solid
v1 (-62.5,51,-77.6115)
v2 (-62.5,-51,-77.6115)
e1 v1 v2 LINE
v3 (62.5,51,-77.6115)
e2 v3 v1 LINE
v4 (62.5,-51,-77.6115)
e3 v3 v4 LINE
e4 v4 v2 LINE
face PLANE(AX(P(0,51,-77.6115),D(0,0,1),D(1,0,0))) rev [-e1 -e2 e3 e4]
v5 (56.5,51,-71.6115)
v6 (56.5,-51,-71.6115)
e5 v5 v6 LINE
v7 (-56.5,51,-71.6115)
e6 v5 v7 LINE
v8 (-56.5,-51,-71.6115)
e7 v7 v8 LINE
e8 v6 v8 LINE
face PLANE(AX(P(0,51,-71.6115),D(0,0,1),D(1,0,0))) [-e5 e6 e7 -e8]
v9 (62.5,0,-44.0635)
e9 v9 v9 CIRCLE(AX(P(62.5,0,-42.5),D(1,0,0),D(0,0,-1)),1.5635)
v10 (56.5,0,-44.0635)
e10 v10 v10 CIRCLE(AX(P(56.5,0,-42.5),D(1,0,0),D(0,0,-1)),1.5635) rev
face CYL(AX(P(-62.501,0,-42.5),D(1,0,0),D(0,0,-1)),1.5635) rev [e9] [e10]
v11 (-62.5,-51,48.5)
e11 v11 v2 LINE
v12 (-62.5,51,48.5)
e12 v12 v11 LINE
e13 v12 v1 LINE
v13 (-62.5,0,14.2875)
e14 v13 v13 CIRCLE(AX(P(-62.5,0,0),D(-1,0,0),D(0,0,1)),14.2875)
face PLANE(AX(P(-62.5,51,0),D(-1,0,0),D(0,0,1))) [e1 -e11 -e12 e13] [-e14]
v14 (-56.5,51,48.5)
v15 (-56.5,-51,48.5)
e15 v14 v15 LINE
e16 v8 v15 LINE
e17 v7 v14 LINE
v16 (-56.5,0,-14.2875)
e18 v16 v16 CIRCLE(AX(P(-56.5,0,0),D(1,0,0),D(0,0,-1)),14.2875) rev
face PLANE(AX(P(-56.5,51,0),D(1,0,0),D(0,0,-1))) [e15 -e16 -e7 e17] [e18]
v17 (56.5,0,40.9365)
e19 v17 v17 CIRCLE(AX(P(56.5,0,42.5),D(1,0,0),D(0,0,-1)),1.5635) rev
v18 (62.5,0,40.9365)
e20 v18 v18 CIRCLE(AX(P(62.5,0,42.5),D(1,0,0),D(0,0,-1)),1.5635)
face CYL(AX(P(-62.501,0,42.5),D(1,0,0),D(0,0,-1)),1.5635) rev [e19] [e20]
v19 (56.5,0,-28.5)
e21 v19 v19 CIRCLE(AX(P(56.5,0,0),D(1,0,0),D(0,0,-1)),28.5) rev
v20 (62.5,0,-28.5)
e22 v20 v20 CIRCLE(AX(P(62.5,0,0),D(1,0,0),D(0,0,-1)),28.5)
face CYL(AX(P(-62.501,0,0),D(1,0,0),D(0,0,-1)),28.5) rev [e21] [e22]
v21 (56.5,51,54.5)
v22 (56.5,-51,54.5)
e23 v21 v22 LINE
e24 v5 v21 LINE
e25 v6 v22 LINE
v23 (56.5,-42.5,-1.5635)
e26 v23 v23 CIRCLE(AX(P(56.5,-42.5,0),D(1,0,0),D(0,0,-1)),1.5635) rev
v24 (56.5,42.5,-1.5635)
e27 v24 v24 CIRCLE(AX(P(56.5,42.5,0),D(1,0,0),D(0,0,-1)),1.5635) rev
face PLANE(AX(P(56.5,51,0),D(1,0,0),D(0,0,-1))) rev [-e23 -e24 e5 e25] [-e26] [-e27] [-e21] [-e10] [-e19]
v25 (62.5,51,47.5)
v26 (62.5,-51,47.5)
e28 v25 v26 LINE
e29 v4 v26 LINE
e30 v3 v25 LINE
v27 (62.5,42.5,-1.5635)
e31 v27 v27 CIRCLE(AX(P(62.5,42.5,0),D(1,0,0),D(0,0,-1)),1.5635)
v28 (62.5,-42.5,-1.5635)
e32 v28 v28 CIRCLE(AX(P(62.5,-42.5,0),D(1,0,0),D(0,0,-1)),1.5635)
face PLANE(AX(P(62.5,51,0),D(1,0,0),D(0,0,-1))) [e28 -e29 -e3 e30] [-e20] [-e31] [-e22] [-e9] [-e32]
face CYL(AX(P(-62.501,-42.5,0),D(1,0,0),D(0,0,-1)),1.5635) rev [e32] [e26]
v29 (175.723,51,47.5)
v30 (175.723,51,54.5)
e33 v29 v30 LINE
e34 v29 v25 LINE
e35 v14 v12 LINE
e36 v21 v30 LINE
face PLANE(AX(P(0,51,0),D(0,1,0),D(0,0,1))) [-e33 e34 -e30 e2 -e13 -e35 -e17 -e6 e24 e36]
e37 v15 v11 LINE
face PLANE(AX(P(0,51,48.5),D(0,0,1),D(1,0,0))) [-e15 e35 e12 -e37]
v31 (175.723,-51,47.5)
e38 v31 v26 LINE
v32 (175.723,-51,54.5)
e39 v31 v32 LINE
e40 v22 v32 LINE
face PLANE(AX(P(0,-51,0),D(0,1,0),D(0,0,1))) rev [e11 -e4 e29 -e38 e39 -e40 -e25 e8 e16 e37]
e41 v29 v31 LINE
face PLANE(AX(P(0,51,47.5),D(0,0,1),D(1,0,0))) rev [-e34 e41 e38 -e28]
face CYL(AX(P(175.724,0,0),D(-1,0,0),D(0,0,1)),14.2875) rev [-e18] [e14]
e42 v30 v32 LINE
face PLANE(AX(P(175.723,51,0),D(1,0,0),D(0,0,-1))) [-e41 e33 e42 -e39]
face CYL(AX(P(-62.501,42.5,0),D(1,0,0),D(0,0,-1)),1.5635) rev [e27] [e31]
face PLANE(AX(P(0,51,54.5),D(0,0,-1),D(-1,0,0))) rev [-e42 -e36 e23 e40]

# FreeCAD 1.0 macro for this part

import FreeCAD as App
import Part
import Sketcher
Q = App.Units.Quantity

doc = App.newDocument("Part")
body = doc.addObject("PartDesign::Body", "Body")

# Sketch on XZ plane
sketch1 = body.newObject("Sketcher::SketchObject", "Sketch")
sketch1.AttachmentSupport = (doc.getObject("XZ_Plane"), [""])
sketch1.MapMode = "FlatFace"
sketch1.addGeometry(Part.LineSegment(App.Vector(175.723, 54.5, 0), App.Vector(175.723, 47.5, 0)), False)
sketch1.addGeometry(Part.LineSegment(App.Vector(175.723, 47.5, 0), App.Vector(62.5, 47.5, 0)), False)
sketch1.addGeometry(Part.LineSegment(App.Vector(62.5, 47.5, 0), App.Vector(62.5, -77.6115, 0)), False)
sketch1.addGeometry(Part.LineSegment(App.Vector(62.5, -77.6115, 0), App.Vector(-62.5, -77.6115, 0)), False)
sketch1.addGeometry(Part.LineSegment(App.Vector(-62.5, -77.6115, 0), App.Vector(-62.5, 48.5, 0)), False)
sketch1.addGeometry(Part.LineSegment(App.Vector(-62.5, 48.5, 0), App.Vector(-56.5, 48.5, 0)), False)
sketch1.addGeometry(Part.LineSegment(App.Vector(-56.5, 48.5, 0), App.Vector(-56.5, -71.6115, 0)), False)
sketch1.addGeometry(Part.LineSegment(App.Vector(-56.5, -71.6115, 0), App.Vector(56.5, -71.6115, 0)), False)
sketch1.addGeometry(Part.LineSegment(App.Vector(56.5, -71.6115, 0), App.Vector(56.5, 54.5, 0)), False)
sketch1.addGeometry(Part.LineSegment(App.Vector(56.5, 54.5, 0), App.Vector(175.723, 54.5, 0)), False)
sketch1.addConstraint(Sketcher.Constraint("Coincident", 0, 2, 1, 1))
sketch1.addConstraint(Sketcher.Constraint("Coincident", 1, 2, 2, 1))
sketch1.addConstraint(Sketcher.Constraint("Coincident", 2, 2, 3, 1))
sketch1.addConstraint(Sketcher.Constraint("Coincident", 3, 2, 4, 1))
sketch1.addConstraint(Sketcher.Constraint("Coincident", 4, 2, 5, 1))
sketch1.addConstraint(Sketcher.Constraint("Coincident", 5, 2, 6, 1))
sketch1.addConstraint(Sketcher.Constraint("Coincident", 6, 2, 7, 1))
sketch1.addConstraint(Sketcher.Constraint("Coincident", 7, 2, 8, 1))
sketch1.addConstraint(Sketcher.Constraint("Coincident", 8, 2, 9, 1))
sketch1.addConstraint(Sketcher.Constraint("Coincident", 9, 2, 0, 1))
sketch1.addConstraint(Sketcher.Constraint("Vertical", 0))
sketch1.addConstraint(Sketcher.Constraint("Horizontal", 1))
sketch1.addConstraint(Sketcher.Constraint("Vertical", 2))
sketch1.addConstraint(Sketcher.Constraint("Horizontal", 3))
sketch1.addConstraint(Sketcher.Constraint("Vertical", 4))
sketch1.addConstraint(Sketcher.Constraint("Horizontal", 5))
sketch1.addConstraint(Sketcher.Constraint("Vertical", 6))
sketch1.addConstraint(Sketcher.Constraint("Horizontal", 7))
sketch1.addConstraint(Sketcher.Constraint("Vertical", 8))
sketch1.addConstraint(Sketcher.Constraint("Horizontal", 9))
sketch1.addConstraint(Sketcher.Constraint("Equal", 4, 8))
sketch1.addConstraint(Sketcher.Constraint("DistanceX", 3, 2, 3, 1, Q("125 mm")))
sketch1.addConstraint(Sketcher.Constraint("DistanceX", 5, 1, 5, 2, Q("6 mm")))
sketch1.addConstraint(Sketcher.Constraint("DistanceX", 7, 1, 7, 2, Q("113 mm")))
sketch1.addConstraint(Sketcher.Constraint("DistanceY", 0, 2, 0, 1, Q("7 mm")))
sketch1.addConstraint(Sketcher.Constraint("DistanceY", 1, 2, 4, 2, Q("1 mm")))
sketch1.addConstraint(Sketcher.Constraint("DistanceY", -1, 1, 0, 2, Q("47.5 mm")))
sketch1.addConstraint(Sketcher.Constraint("DistanceX", -1, 1, 1, 2, Q("62.5 mm")))
sketch1.addConstraint(Sketcher.Constraint("DistanceX", 1, 2, 1, 1, Q("113.223 mm")))
sketch1.addConstraint(Sketcher.Constraint("DistanceY", 2, 2, 2, 1, Q("125.1115 mm")))
pad1 = body.newObject("PartDesign::Pad", "Pad")
pad1.Profile = sketch1
pad1.Type = "TwoLengths"
pad1.Length = 51
pad1.Length2 = 51
pad1.Reversed = True

# Sketch on YZ plane
sketch2 = body.newObject("Sketcher::SketchObject", "Sketch001")
sketch2.AttachmentSupport = (doc.getObject("YZ_Plane"), [""])
sketch2.MapMode = "FlatFace"
sketch2.AttachmentOffset = App.Placement(App.Vector(0, 0, 62.5), App.Rotation())
sketch2.addGeometry(Part.Circle(App.Vector(42.5, 0, 0), App.Vector(0, 0, 1), 1.5635), False)
sketch2.addConstraint(Sketcher.Constraint("PointOnObject", 0, 3, -1))
sketch2.addConstraint(Sketcher.Constraint("Diameter", 0, Q("3.127 mm")))
sketch2.addConstraint(Sketcher.Constraint("DistanceX", -1, 1, 0, 3, Q("42.5 mm")))
pocket1 = body.newObject("PartDesign::Pocket", "Pocket")
pocket1.Profile = sketch2
pocket1.Type = "UpToFirst"

# Sketch on YZ plane
sketch3 = body.newObject("Sketcher::SketchObject", "Sketch002")
sketch3.AttachmentSupport = (doc.getObject("YZ_Plane"), [""])
sketch3.MapMode = "FlatFace"
sketch3.AttachmentOffset = App.Placement(App.Vector(0, 0, 62.5), App.Rotation())
sketch3.addGeometry(Part.Circle(App.Vector(0, -42.5, 0), App.Vector(0, 0, 1), 1.5635), False)
sketch3.addConstraint(Sketcher.Constraint("PointOnObject", 0, 3, -2))
sketch3.addConstraint(Sketcher.Constraint("Diameter", 0, Q("3.127 mm")))
sketch3.addConstraint(Sketcher.Constraint("DistanceY", 0, 3, -1, 1, Q("42.5 mm")))
pocket2 = body.newObject("PartDesign::Pocket", "Pocket001")
pocket2.Profile = sketch3
pocket2.Type = "UpToFirst"

# Sketch on YZ plane
sketch4 = body.newObject("Sketcher::SketchObject", "Sketch003")
sketch4.AttachmentSupport = (doc.getObject("YZ_Plane"), [""])
sketch4.MapMode = "FlatFace"
sketch4.AttachmentOffset = App.Placement(App.Vector(0, 0, 62.5), App.Rotation())
sketch4.addGeometry(Part.Circle(App.Vector(-42.5, 0, 0), App.Vector(0, 0, 1), 1.5635), False)
sketch4.addConstraint(Sketcher.Constraint("PointOnObject", 0, 3, -1))
sketch4.addConstraint(Sketcher.Constraint("Diameter", 0, Q("3.127 mm")))
sketch4.addConstraint(Sketcher.Constraint("DistanceX", 0, 3, -1, 1, Q("42.5 mm")))
pocket3 = body.newObject("PartDesign::Pocket", "Pocket002")
pocket3.Profile = sketch4
pocket3.Type = "UpToFirst"

# Sketch on YZ plane
sketch5 = body.newObject("Sketcher::SketchObject", "Sketch004")
sketch5.AttachmentSupport = (doc.getObject("YZ_Plane"), [""])
sketch5.MapMode = "FlatFace"
sketch5.AttachmentOffset = App.Placement(App.Vector(0, 0, 62.5), App.Rotation())
sketch5.addGeometry(Part.Circle(App.Vector(0, 42.5, 0), App.Vector(0, 0, 1), 1.5635), False)
sketch5.addConstraint(Sketcher.Constraint("PointOnObject", 0, 3, -2))
sketch5.addConstraint(Sketcher.Constraint("Diameter", 0, Q("3.127 mm")))
sketch5.addConstraint(Sketcher.Constraint("DistanceY", -1, 1, 0, 3, Q("42.5 mm")))
pocket4 = body.newObject("PartDesign::Pocket", "Pocket003")
pocket4.Profile = sketch5
pocket4.Type = "UpToFirst"

# Sketch on YZ plane
sketch6 = body.newObject("Sketcher::SketchObject", "Sketch005")
sketch6.AttachmentSupport = (doc.getObject("YZ_Plane"), [""])
sketch6.MapMode = "FlatFace"
sketch6.AttachmentOffset = App.Placement(App.Vector(0, 0, 62.5), App.Rotation())
sketch6.addGeometry(Part.Circle(App.Vector(0, 0, 0), App.Vector(0, 0, 1), 28.5), False)
sketch6.addConstraint(Sketcher.Constraint("Coincident", 0, 3, -1, 1))
sketch6.addConstraint(Sketcher.Constraint("Diameter", 0, Q("57 mm")))
pocket5 = body.newObject("PartDesign::Pocket", "Pocket004")
pocket5.Profile = sketch6
pocket5.Type = "UpToFirst"

# Sketch on YZ plane
sketch7 = body.newObject("Sketcher::SketchObject", "Sketch006")
sketch7.AttachmentSupport = (doc.getObject("YZ_Plane"), [""])
sketch7.MapMode = "FlatFace"
sketch7.AttachmentOffset = App.Placement(App.Vector(0, 0, -62.5), App.Rotation())
sketch7.addGeometry(Part.Circle(App.Vector(0, 0, 0), App.Vector(0, 0, 1), 14.2875), False)
sketch7.addConstraint(Sketcher.Constraint("Coincident", 0, 3, -1, 1))
sketch7.addConstraint(Sketcher.Constraint("Diameter", 0, Q("28.575 mm")))
pocket6 = body.newObject("PartDesign::Pocket", "Pocket005")
pocket6.Profile = sketch7
pocket6.Type = "UpToFirst"
pocket6.Reversed = True

doc.recompute()
